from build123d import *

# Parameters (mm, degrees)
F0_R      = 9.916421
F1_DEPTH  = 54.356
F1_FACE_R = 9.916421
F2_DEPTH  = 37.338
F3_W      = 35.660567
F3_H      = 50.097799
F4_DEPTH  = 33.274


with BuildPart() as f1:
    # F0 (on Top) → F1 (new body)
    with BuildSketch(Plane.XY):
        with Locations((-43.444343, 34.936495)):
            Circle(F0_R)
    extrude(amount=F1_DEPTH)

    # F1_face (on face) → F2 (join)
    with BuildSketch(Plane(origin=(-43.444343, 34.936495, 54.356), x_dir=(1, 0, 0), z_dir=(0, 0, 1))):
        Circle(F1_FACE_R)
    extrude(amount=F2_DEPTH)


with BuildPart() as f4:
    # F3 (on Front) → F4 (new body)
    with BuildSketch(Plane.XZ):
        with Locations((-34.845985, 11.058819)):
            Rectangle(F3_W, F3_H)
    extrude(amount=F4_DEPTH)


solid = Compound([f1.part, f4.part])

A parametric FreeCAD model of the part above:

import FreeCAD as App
import Part
import Sketcher

V = App.Vector
Q = App.Units.Quantity


def add_polygon(sketch, points):
    """Adds a closed chain of lines whose ends are joined by coincident constraints."""
    first, n = sketch.GeometryCount, len(points)
    for a, b in zip(points, points[1:] + points[:1]):
        sketch.addGeometry(Part.LineSegment(App.Vector(*a, 0), App.Vector(*b, 0)), False)
    for i in range(n):
        sketch.addConstraint(Sketcher.Constraint("Coincident", first + i, 2, first + (i + 1) % n, 1))

doc = App.newDocument("Part")
body = doc.addObject("PartDesign::Body", "Body")

# Sketch on XY plane
sketch1 = body.newObject("Sketcher::SketchObject", "Sketch")
sketch1.AttachmentSupport = (doc.getObject("XY_Plane"), [""])
sketch1.MapMode = "FlatFace"
sketch1.addGeometry(Part.Circle(V(-43.444343, 34.936495, 0), V(0, 0, 1), 9.916421), False)
sketch1.addConstraint([
    Sketcher.Constraint("Diameter", 0, Q("19.832842 mm")),
    Sketcher.Constraint("DistanceX", 0, 3, -1, 1, Q("43.444343 mm")),
    Sketcher.Constraint("DistanceY", -1, 1, 0, 3, Q("34.936495 mm")),
])
pad1 = body.newObject("PartDesign::Pad", "Pad")
pad1.Profile = sketch1
pad1.Length = Q("2.14 in")

# Sketch on XY plane
sketch2 = body.newObject("Sketcher::SketchObject", "Sketch001")
sketch2.AttachmentSupport = (doc.getObject("XY_Plane"), [""])
sketch2.MapMode = "FlatFace"
sketch2.AttachmentOffset = App.Placement(V(0, 0, 2.14 * 25.4), App.Rotation())
sketch2.addGeometry(Part.Circle(V(-43.444343, 34.936495, 0), V(0, 0, 1), 9.916421), False)
sketch2.addConstraint([
    Sketcher.Constraint("Diameter", 0, Q("19.832842 mm")),
    Sketcher.Constraint("DistanceX", 0, 3, -1, 1, Q("43.444343 mm")),
    Sketcher.Constraint("DistanceY", -1, 1, 0, 3, Q("34.936495 mm")),
])
pad2 = body.newObject("PartDesign::Pad", "Pad001")
pad2.Profile = sketch2
pad2.Length = Q("1.47 in")
body2 = doc.addObject("PartDesign::Body", "Body001")

# Sketch on XZ plane
sketch3 = body2.newObject("Sketcher::SketchObject", "Sketch002")
sketch3.AttachmentSupport = (doc.getObject("XZ_Plane001"), [""])
sketch3.MapMode = "FlatFace"
add_polygon(sketch3, [(-52.676268, 36.107718), (-52.676268, -13.99008), (-17.015701, -13.99008), (-17.015701, 36.107718)])  # lines 0-3
sketch3.addConstraint([
    Sketcher.Constraint("Vertical", 0),
    Sketcher.Constraint("Horizontal", 1),
    Sketcher.Constraint("Vertical", 2),
    Sketcher.Constraint("Horizontal", 3),
    Sketcher.Constraint("DistanceY", 0, 2, 0, 1, Q("50.097799 mm")),
    Sketcher.Constraint("DistanceX", 1, 2, -1, 1, Q("17.015701 mm")),
    Sketcher.Constraint("DistanceX", 1, 1, 1, 2, Q("35.660567 mm")),
    Sketcher.Constraint("DistanceY", 0, 2, -1, 1, Q("13.99008 mm")),
])
pad3 = body2.newObject("PartDesign::Pad", "Pad002")
pad3.Profile = sketch3
pad3.Length = Q("1.31 in")

doc.recompute()
